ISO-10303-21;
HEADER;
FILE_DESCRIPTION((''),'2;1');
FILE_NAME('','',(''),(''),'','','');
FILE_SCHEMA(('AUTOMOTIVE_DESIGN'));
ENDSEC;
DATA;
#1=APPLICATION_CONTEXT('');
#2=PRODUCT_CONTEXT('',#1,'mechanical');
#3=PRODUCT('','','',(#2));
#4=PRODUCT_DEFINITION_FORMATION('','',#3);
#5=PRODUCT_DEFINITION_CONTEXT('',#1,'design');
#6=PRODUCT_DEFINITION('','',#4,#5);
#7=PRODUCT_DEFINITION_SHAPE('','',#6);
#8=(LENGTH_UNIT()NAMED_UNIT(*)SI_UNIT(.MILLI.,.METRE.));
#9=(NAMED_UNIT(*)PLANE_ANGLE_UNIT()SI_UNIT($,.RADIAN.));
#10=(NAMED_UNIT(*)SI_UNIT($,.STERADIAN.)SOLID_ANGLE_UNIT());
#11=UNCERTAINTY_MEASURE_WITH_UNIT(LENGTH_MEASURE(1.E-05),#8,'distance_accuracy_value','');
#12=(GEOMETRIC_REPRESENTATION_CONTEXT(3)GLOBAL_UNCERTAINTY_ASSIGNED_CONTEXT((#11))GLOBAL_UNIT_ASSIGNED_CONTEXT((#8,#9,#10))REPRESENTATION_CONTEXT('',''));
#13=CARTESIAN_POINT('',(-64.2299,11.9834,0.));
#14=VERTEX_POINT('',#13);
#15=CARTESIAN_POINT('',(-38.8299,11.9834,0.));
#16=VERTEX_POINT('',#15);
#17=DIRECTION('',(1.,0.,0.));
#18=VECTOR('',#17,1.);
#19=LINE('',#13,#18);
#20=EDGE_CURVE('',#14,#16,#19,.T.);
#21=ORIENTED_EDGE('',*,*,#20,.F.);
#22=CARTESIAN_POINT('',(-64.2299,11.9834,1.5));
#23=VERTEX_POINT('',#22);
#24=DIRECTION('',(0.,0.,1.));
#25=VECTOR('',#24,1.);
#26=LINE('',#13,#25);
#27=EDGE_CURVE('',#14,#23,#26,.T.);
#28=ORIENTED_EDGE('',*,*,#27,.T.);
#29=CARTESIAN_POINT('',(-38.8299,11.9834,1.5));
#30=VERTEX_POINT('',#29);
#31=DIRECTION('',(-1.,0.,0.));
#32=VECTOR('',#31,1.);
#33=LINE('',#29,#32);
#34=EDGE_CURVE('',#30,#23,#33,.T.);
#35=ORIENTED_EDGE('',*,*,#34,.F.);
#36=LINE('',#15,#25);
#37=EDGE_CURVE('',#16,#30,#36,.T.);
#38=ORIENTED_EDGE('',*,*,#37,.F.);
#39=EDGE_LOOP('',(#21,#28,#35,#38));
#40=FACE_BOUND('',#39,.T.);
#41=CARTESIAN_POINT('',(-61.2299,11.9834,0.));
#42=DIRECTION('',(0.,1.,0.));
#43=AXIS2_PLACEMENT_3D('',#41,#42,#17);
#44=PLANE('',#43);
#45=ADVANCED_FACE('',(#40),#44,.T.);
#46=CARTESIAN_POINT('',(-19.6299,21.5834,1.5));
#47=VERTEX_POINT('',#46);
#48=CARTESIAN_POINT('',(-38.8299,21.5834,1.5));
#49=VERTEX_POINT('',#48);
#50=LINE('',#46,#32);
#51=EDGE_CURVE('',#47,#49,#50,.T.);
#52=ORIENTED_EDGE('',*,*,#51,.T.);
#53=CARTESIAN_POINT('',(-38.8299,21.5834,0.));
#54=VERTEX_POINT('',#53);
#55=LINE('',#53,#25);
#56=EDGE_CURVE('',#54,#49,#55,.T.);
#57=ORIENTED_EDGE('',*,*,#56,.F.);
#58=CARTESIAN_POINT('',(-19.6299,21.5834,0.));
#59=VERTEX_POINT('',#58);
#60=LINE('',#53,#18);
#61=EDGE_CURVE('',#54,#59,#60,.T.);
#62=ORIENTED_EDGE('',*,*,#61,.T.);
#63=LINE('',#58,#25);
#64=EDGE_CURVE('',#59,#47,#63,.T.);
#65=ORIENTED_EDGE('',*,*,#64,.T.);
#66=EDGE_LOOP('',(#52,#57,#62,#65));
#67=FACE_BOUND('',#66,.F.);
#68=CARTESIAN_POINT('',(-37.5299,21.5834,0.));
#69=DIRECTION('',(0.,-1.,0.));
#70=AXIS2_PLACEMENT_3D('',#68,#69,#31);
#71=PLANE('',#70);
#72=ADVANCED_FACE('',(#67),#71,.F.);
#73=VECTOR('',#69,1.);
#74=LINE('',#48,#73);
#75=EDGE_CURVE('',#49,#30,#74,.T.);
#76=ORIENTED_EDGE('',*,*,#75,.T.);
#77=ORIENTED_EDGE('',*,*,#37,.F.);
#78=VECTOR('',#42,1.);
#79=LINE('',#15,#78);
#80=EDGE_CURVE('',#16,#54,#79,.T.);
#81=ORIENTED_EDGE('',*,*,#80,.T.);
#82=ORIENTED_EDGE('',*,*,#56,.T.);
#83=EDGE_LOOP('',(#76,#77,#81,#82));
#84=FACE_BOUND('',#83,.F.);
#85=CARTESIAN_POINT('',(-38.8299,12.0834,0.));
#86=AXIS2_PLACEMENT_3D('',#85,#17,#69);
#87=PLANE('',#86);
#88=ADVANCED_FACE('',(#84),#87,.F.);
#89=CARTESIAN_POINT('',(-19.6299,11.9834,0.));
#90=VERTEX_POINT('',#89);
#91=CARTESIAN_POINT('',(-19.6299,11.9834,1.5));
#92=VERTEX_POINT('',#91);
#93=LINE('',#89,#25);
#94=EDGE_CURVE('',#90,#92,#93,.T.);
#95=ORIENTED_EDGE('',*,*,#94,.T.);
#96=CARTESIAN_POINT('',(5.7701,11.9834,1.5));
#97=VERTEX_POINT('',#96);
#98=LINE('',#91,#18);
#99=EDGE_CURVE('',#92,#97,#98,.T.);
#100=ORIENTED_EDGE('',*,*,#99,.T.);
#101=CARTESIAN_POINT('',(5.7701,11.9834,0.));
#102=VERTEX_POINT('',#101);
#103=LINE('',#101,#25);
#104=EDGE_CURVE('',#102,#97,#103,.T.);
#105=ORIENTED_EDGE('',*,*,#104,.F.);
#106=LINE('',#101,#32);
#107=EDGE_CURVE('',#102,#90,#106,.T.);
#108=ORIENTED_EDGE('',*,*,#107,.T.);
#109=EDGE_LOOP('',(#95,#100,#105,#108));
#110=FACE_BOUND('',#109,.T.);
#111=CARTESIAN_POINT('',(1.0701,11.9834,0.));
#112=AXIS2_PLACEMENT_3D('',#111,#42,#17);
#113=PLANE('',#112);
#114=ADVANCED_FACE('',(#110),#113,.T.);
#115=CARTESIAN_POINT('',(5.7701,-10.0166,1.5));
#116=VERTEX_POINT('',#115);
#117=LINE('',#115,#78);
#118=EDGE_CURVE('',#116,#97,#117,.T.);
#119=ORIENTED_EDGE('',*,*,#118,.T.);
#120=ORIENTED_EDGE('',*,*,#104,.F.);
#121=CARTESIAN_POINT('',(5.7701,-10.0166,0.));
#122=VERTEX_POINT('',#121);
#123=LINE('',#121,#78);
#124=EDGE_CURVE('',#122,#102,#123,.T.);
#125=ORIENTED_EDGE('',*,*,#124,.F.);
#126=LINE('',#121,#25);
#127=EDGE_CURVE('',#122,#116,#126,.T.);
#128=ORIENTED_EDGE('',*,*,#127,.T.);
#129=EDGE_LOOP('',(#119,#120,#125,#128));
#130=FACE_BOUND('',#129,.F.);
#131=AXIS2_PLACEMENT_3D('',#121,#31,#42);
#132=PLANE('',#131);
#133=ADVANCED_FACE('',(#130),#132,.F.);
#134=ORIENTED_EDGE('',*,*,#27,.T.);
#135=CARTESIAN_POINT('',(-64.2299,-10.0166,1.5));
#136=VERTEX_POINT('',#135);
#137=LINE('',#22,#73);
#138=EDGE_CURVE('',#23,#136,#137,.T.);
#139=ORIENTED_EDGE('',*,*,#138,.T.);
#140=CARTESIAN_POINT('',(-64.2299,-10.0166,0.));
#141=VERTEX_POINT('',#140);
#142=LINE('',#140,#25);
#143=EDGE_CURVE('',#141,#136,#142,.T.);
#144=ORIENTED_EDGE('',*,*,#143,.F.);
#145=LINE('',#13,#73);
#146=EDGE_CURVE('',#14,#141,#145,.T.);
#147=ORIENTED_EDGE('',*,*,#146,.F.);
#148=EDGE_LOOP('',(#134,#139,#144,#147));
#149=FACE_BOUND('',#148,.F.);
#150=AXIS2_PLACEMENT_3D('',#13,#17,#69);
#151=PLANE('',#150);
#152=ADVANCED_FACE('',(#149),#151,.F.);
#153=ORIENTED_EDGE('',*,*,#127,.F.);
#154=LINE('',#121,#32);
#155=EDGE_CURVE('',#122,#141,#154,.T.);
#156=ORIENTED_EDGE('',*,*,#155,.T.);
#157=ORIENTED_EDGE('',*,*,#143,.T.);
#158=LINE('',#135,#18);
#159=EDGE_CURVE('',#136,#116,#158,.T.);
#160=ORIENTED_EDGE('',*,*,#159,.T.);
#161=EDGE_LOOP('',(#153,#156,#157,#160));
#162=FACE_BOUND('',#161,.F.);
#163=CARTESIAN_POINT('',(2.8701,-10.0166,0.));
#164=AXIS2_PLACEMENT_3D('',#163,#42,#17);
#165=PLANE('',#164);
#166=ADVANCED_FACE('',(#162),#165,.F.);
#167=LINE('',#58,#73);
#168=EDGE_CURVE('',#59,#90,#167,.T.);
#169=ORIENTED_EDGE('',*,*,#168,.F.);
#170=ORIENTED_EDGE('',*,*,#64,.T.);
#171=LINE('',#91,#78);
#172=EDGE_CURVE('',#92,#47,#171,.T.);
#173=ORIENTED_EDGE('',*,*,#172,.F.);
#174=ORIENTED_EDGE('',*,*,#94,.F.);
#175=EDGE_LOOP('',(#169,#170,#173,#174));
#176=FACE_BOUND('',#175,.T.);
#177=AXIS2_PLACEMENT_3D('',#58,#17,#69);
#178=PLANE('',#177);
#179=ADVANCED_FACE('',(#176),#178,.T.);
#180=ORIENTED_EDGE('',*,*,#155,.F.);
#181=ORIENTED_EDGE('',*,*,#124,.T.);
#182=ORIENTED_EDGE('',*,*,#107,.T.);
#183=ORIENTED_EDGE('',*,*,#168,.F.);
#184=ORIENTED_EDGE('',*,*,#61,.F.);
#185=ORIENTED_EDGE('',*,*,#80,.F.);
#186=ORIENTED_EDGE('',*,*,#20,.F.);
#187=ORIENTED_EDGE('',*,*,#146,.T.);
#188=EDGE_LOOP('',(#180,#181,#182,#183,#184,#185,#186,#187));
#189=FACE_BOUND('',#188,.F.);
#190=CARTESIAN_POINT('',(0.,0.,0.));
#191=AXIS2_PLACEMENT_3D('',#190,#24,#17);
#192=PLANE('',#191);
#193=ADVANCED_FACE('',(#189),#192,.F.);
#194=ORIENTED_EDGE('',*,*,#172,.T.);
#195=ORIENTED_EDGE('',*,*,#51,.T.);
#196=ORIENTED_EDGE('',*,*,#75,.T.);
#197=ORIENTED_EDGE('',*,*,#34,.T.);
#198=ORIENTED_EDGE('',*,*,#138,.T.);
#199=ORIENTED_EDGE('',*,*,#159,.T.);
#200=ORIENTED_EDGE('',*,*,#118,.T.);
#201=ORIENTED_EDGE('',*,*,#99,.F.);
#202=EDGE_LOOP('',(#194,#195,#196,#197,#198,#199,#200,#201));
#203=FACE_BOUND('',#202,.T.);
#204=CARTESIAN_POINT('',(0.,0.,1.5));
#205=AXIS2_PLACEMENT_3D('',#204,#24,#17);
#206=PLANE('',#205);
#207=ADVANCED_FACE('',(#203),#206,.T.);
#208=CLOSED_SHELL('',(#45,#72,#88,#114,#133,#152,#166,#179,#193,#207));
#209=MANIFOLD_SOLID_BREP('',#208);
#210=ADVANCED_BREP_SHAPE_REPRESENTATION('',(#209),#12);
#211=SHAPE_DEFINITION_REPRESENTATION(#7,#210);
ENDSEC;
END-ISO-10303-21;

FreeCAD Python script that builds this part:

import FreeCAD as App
import Part
import Sketcher
from FreeCAD import Vector


def add_polygon(sketch, points):
    """Adds a closed chain of lines whose ends are joined by coincident constraints."""
    first, n = sketch.GeometryCount, len(points)
    for a, b in zip(points, points[1:] + points[:1]):
        sketch.addGeometry(Part.LineSegment(App.Vector(*a, 0), App.Vector(*b, 0)), False)
    for i in range(n):
        sketch.addConstraint(Sketcher.Constraint("Coincident", first + i, 2, first + (i + 1) % n, 1))

doc = App.newDocument("Part")
params = doc.addObject("Spreadsheet::Sheet", "Params")
for row, (alias, value) in enumerate([
    ("sketch1_width", "70 mm"),
    ("sketch1_height", "22 mm"),
    ("sketch1_width2", "19.2 mm"),
    ("sketch1_height2", "9.6 mm"),
    ("pad1_length", "1.5 mm"),
], start=1):
    params.set(f"A{row}", alias)
    params.set(f"B{row}", "=" + value)
    params.setAlias(f"B{row}", alias)

body = doc.addObject("PartDesign::Body", "Body")

# Sketch on XY plane
sketch1 = body.newObject("Sketcher::SketchObject", "Sketch")
sketch1.AttachmentSupport = (doc.getObject("XY_Plane"), [""])
sketch1.MapMode = "FlatFace"
add_polygon(sketch1, [(-20, 12), (-20, 22), (-39, 22), (-39, 12), (-64, 12), (-64, -10), (6, -10), (6, 12)])  # lines 0-7
sketch1.addConstraint([
    Sketcher.Constraint("Vertical", 0),
    Sketcher.Constraint("Horizontal", 1),
    Sketcher.Constraint("Vertical", 2),
    Sketcher.Constraint("Horizontal", 3),
    Sketcher.Constraint("Vertical", 4),
    Sketcher.Constraint("Horizontal", 5),
    Sketcher.Constraint("Vertical", 6),
    Sketcher.Constraint("Horizontal", 7),
    Sketcher.Constraint("Horizontal", 3, 2, 6, 2),
    Sketcher.Constraint("Equal", 3, 7),
    Sketcher.Constraint("DistanceX", 5, 1, 5, 2, 70.0),
    Sketcher.Constraint("DistanceY", 4, 2, 4, 1, 22.0),
    Sketcher.Constraint("DistanceX", 1, 2, 1, 1, 19.2),
    Sketcher.Constraint("DistanceY", 0, 1, 0, 2, 9.6),
    Sketcher.Constraint("DistanceX", 0, 2, -1, 1, 19.63),
    Sketcher.Constraint("DistanceY", -1, 1, 0, 2, 21.5834),
])
sketch1.setExpression("Constraints[18]", "Params.sketch1_width")
sketch1.setExpression("Constraints[19]", "Params.sketch1_height")
sketch1.setExpression("Constraints[20]", "Params.sketch1_width2")
sketch1.setExpression("Constraints[21]", "Params.sketch1_height2")
pad1 = body.newObject("PartDesign::Pad", "Pad")
pad1.Profile = sketch1
pad1.setExpression("Length", "Params.pad1_length")

doc.recompute()
